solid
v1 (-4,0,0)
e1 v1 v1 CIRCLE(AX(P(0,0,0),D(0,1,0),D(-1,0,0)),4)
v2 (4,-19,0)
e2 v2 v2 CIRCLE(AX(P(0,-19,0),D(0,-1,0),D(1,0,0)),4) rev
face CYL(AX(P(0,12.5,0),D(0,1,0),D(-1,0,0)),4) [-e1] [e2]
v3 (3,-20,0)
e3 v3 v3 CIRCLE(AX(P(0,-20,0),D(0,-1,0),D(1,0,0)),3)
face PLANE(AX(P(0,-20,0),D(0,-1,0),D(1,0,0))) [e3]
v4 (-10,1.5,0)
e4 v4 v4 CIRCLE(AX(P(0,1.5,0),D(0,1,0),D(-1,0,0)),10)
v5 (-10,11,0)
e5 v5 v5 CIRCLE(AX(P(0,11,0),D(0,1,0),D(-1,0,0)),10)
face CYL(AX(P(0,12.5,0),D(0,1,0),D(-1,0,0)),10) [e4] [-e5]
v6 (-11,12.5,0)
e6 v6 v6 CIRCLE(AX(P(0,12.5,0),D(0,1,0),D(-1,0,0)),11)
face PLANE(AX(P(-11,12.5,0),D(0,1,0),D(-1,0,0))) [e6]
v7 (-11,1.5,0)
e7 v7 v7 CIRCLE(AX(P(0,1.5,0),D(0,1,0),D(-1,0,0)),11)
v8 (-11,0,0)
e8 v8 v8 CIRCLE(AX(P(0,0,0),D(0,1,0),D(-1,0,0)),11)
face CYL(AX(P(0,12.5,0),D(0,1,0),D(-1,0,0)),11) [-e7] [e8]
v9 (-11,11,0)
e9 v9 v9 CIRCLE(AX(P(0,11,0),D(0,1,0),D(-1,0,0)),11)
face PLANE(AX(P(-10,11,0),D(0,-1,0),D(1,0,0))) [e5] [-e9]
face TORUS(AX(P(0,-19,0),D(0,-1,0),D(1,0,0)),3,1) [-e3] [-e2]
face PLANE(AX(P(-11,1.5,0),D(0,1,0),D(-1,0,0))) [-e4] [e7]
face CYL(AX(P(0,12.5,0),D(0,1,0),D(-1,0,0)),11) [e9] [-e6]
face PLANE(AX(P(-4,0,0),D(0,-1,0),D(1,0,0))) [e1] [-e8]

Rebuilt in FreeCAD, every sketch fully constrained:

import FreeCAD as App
import Part
import Sketcher
Q = App.Units.Quantity


def edges_at(feature, points):
    """Names of the edges that pass closest to the given points."""
    edges = feature.Shape.Edges
    near = lambda p: min(range(len(edges)), key=lambda i: edges[i].distToShape(Part.Vertex(*p))[0])
    return sorted({f"Edge{near(p) + 1}" for p in points})

doc = App.newDocument("Part")
params = doc.addObject("Spreadsheet::Sheet", "Params")
for row, (alias, value) in enumerate([
    ("sketch1_width", "4 mm"),
    ("sketch1_width2", "11 mm"),
    ("sketch1_width3", "1 mm"),
    ("sketch1_height", "20 mm"),
    ("sketch1_height2", "32.5 mm"),
    ("revolution_angle", "360 deg"),
    ("fillet_radius", "1 mm"),
], start=1):
    params.set(f"A{row}", alias)
    params.set(f"B{row}", "=" + value)
    params.setAlias(f"B{row}", alias)

body = doc.addObject("PartDesign::Body", "Body")

sketch1 = body.newObject("Sketcher::SketchObject", "Sketch")
sketch1.AttachmentSupport = (doc.getObject("XY_Plane"), [""])
sketch1.MapMode = "FlatFace"
sketch1.addGeometry([
    Part.LineSegment(App.Vector(-4, 0, 0), App.Vector(-4, -20, 0)),
    Part.LineSegment(App.Vector(-4, -20, 0), App.Vector(0, -20, 0)),
    Part.LineSegment(App.Vector(0, -20, 0), App.Vector(0, 12.5, 0)),
    Part.LineSegment(App.Vector(0, 12.5, 0), App.Vector(-11, 12.5, 0)),
    Part.LineSegment(App.Vector(-11, 12.5, 0), App.Vector(-11, 11, 0)),
    Part.LineSegment(App.Vector(-11, 11, 0), App.Vector(-10, 11, 0)),
    Part.LineSegment(App.Vector(-10, 11, 0), App.Vector(-10, 1.5, 0)),
    Part.LineSegment(App.Vector(-10, 1.5, 0), App.Vector(-11, 1.5, 0)),
    Part.LineSegment(App.Vector(-11, 1.5, 0), App.Vector(-11, 0, 0)),
    Part.LineSegment(App.Vector(-11, 0, 0), App.Vector(-4, 0, 0)),
], False)
sketch1.addConstraint([
    Sketcher.Constraint("Coincident", 0, 2, 1, 1),
    Sketcher.Constraint("Coincident", 1, 2, 2, 1),
    Sketcher.Constraint("Coincident", 2, 2, 3, 1),
    Sketcher.Constraint("Coincident", 3, 2, 4, 1),
    Sketcher.Constraint("Coincident", 4, 2, 5, 1),
    Sketcher.Constraint("Coincident", 5, 2, 6, 1),
    Sketcher.Constraint("Coincident", 6, 2, 7, 1),
    Sketcher.Constraint("Coincident", 7, 2, 8, 1),
    Sketcher.Constraint("Coincident", 8, 2, 9, 1),
    Sketcher.Constraint("Coincident", 9, 2, 0, 1),
    Sketcher.Constraint("Vertical", 0),
    Sketcher.Constraint("Horizontal", 1),
    Sketcher.Constraint("Vertical", 2),
    Sketcher.Constraint("Horizontal", 3),
    Sketcher.Constraint("Vertical", 4),
    Sketcher.Constraint("Horizontal", 5),
    Sketcher.Constraint("Vertical", 6),
    Sketcher.Constraint("Horizontal", 7),
    Sketcher.Constraint("Vertical", 8),
    Sketcher.Constraint("Horizontal", 9),
    Sketcher.Constraint("PointOnObject", 1, 2, -2),
    Sketcher.Constraint("PointOnObject", 8, 2, -1),
    Sketcher.Constraint("Vertical", 4, 2, 7, 2),
    Sketcher.Constraint("Equal", 4, 8),
    Sketcher.Constraint("DistanceX", 1, 1, 1, 2, Q("4 mm")),
    Sketcher.Constraint("DistanceX", 3, 2, 3, 1, Q("11 mm")),
    Sketcher.Constraint("DistanceX", 5, 1, 5, 2, Q("1 mm")),
    Sketcher.Constraint("DistanceY", 0, 2, 0, 1, Q("20 mm")),
    Sketcher.Constraint("DistanceY", 2, 1, 2, 2, Q("32.5 mm")),
    Sketcher.Constraint("DistanceY", 4, 2, 4, 1, Q("1.5 mm")),
])
sketch1.setExpression("Constraints[24]", "Params.sketch1_width")
sketch1.setExpression("Constraints[25]", "Params.sketch1_width2")
sketch1.setExpression("Constraints[26]", "Params.sketch1_width3")
sketch1.setExpression("Constraints[27]", "Params.sketch1_height")
sketch1.setExpression("Constraints[28]", "Params.sketch1_height2")
revolution = body.newObject("PartDesign::Revolution", "Revolution")
revolution.Profile = sketch1
revolution.ReferenceAxis = (sketch1, ["V_Axis"])
revolution.setExpression("Angle", "Params.revolution_angle")
doc.recompute()

fillet = body.newObject("PartDesign::Fillet", "Fillet")
fillet.Base = (revolution, edges_at(revolution, [(4, -20, 0)]))
fillet.setExpression("Radius", "Params.fillet_radius")

doc.recompute()
